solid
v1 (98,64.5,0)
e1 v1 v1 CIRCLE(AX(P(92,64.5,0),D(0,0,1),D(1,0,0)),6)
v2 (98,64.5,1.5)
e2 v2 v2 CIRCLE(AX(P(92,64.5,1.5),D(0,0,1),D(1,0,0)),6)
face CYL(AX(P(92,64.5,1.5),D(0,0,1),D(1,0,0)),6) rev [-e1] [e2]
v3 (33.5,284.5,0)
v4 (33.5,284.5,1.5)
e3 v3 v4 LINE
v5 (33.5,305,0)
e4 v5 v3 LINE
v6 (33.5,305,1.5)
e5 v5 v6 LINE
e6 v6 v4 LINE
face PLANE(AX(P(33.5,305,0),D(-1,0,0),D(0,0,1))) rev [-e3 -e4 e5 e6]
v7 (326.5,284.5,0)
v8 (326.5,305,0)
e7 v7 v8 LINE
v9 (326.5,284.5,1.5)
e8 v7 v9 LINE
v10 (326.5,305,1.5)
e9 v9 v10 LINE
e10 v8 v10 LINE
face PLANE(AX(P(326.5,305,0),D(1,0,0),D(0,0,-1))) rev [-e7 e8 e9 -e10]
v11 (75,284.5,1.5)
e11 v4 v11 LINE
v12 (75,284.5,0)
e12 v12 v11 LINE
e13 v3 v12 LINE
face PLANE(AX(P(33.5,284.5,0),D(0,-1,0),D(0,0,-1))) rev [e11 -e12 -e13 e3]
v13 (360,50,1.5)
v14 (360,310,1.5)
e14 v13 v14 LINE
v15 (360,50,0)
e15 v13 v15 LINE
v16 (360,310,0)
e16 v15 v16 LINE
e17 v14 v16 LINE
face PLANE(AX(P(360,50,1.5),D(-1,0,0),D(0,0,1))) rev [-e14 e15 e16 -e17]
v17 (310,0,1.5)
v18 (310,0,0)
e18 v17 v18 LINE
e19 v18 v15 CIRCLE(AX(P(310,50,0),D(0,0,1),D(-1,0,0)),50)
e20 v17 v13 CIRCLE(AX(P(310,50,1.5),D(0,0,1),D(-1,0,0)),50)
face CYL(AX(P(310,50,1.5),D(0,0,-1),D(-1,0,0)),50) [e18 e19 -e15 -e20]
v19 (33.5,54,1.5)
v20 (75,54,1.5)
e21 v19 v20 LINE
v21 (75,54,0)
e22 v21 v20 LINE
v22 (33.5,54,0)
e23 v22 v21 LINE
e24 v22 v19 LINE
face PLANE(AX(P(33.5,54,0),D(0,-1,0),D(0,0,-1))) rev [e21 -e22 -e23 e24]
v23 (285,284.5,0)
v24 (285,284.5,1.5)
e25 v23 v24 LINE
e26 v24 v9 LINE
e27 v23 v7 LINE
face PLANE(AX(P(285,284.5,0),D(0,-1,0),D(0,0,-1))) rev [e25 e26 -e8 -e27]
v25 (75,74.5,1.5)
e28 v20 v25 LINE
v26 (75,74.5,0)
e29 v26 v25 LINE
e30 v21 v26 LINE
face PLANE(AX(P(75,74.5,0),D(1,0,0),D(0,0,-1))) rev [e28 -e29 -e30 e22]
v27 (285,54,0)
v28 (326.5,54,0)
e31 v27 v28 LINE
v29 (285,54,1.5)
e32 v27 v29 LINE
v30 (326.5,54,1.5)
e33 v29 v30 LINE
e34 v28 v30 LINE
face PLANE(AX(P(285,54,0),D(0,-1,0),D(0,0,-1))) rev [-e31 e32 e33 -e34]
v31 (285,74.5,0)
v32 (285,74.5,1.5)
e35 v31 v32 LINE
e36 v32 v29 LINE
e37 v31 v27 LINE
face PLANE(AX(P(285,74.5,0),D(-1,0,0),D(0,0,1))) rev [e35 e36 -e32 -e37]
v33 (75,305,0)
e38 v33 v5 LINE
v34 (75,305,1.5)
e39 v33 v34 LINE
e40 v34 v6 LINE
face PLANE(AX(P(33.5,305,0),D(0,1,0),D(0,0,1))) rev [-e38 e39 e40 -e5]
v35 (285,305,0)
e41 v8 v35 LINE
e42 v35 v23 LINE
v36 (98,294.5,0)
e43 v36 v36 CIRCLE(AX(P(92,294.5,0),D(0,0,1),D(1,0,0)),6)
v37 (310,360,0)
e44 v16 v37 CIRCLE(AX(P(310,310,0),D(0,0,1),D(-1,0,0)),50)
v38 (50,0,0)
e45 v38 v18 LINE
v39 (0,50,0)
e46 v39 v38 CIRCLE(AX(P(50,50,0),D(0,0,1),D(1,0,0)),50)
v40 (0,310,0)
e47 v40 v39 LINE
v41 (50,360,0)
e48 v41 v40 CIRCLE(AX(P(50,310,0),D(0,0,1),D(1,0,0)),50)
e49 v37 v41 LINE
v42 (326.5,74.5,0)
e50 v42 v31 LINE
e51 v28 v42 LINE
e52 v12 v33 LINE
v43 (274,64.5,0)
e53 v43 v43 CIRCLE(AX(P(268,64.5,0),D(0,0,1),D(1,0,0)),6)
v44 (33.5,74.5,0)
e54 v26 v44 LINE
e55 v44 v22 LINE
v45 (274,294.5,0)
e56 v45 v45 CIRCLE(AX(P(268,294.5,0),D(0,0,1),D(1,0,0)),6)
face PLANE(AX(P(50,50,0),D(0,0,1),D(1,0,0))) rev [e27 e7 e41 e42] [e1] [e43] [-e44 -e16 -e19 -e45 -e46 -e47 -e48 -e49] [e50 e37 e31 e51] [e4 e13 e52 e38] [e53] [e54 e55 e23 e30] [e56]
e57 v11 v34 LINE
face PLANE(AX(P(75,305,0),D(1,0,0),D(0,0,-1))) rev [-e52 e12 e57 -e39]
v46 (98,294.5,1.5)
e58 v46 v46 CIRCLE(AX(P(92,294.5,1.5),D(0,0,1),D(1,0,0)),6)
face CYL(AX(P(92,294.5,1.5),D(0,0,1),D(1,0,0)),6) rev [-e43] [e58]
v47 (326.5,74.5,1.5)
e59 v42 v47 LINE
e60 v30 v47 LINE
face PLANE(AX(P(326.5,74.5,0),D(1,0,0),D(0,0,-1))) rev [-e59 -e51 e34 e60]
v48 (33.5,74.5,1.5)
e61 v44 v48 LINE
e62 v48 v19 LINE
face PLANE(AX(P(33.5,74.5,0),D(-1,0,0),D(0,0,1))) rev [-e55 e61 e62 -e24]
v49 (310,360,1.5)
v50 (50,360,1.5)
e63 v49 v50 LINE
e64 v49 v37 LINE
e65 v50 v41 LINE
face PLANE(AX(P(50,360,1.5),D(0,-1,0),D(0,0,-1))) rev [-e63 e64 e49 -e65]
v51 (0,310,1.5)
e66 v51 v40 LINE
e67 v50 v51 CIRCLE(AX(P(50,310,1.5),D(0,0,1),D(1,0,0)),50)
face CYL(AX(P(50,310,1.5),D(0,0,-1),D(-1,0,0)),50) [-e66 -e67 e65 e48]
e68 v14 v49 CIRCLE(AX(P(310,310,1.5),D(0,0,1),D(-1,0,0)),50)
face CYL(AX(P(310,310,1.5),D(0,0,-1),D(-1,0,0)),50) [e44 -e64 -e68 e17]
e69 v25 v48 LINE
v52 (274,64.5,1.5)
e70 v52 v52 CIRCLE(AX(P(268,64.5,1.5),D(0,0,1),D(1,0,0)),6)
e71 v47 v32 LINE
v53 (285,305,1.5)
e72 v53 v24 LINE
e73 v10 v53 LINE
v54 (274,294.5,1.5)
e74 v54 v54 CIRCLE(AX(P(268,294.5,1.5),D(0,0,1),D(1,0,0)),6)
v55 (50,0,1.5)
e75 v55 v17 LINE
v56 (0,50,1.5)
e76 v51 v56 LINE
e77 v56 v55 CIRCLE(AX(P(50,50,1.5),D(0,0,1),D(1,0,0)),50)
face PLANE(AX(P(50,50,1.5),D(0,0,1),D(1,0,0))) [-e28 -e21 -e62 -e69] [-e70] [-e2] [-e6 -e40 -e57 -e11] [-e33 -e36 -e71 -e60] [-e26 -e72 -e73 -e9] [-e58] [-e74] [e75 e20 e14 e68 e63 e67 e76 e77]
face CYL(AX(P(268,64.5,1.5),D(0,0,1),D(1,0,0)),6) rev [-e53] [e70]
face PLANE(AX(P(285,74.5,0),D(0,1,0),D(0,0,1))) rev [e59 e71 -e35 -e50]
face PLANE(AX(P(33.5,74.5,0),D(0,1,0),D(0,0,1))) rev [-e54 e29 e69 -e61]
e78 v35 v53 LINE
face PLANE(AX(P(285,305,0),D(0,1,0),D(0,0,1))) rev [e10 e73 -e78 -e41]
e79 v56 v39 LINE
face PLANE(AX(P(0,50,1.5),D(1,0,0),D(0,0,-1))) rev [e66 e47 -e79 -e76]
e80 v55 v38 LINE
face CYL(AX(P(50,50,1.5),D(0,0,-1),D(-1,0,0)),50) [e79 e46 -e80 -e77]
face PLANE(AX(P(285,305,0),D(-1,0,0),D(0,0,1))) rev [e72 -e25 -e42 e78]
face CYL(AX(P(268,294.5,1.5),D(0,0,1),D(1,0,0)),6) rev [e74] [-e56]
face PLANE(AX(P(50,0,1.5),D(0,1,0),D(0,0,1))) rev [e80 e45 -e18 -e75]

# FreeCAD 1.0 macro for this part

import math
import FreeCAD as App
import Part
import Sketcher

V = App.Vector
Q = App.Units.Quantity

doc = App.newDocument("Part")
body = doc.addObject("PartDesign::Body", "Body")

# Sketch on XY plane
sketch1 = body.newObject("Sketcher::SketchObject", "Sketch")
sketch1.AttachmentSupport = (doc.getObject("XY_Plane"), [""])
sketch1.MapMode = "FlatFace"
sketch1.addGeometry([
    Part.LineSegment(V(50, 0, 0), V(310, 0, 0)),  # 0
    Part.ArcOfCircle(Part.Circle(V(310, 50, 0), V(0, 0, 1), 50), math.radians(-90), math.radians(0)),  # 1
    Part.LineSegment(V(360, 50, 0), V(360, 310, 0)),  # 2
    Part.ArcOfCircle(Part.Circle(V(310, 310, 0), V(0, 0, 1), 50), math.radians(0), math.radians(90)),  # 3
    Part.LineSegment(V(310, 360, 0), V(50, 360, 0)),  # 4
    Part.ArcOfCircle(Part.Circle(V(50, 310, 0), V(0, 0, 1), 50), math.radians(90), math.radians(180)),  # 5
    Part.LineSegment(V(0, 310, 0), V(0, 50, 0)),  # 6
    Part.ArcOfCircle(Part.Circle(V(50, 50, 0), V(0, 0, 1), 50), math.radians(-180), math.radians(-90)),  # 7
], False)
sketch1.addConstraint([
    Sketcher.Constraint("Tangent", 0, 2, 1, 1),
    Sketcher.Constraint("Tangent", 1, 2, 2, 1),
    Sketcher.Constraint("Tangent", 2, 2, 3, 1),
    Sketcher.Constraint("Tangent", 3, 2, 4, 1),
    Sketcher.Constraint("Tangent", 4, 2, 5, 1),
    Sketcher.Constraint("Tangent", 5, 2, 6, 1),
    Sketcher.Constraint("Tangent", 6, 2, 7, 1),
    Sketcher.Constraint("Tangent", 7, 2, 0, 1),
    Sketcher.Constraint("Horizontal", 0),
    Sketcher.Constraint("Vertical", 2),
    Sketcher.Constraint("Horizontal", 4),
    Sketcher.Constraint("Vertical", 6),
    Sketcher.Constraint("Equal", 1, 3),
    Sketcher.Constraint("Equal", 3, 5),
    Sketcher.Constraint("Equal", 5, 7),
    Sketcher.Constraint("PointOnObject", 0, 2, -1),
    Sketcher.Constraint("PointOnObject", 5, 2, -2),
    Sketcher.Constraint("Equal", 4, 2),
    Sketcher.Constraint("Radius", 1, Q("50 mm")),
    Sketcher.Constraint("DistanceX", 0, 1, 0, 2, Q("260 mm")),
])
pad1 = body.newObject("PartDesign::Pad", "Pad")
pad1.Profile = sketch1
pad1.Length = 1.5

# Sketch on XY plane
sketch2 = body.newObject("Sketcher::SketchObject", "Sketch001")
sketch2.AttachmentSupport = (doc.getObject("XY_Plane"), [""])
sketch2.MapMode = "FlatFace"
sketch2.AttachmentOffset = App.Placement(V(0, 0, 1.5), App.Rotation())
sketch2.addGeometry([
    Part.LineSegment(V(34, 305, 0), V(34, 284, 0)),  # 0
    Part.LineSegment(V(34, 284, 0), V(75, 284, 0)),  # 1
    Part.LineSegment(V(75, 284, 0), V(75, 305, 0)),  # 2
    Part.LineSegment(V(75, 305, 0), V(34, 305, 0)),  # 3
    Part.LineSegment(V(285, 305, 0), V(285, 284, 0)),  # 4
    Part.LineSegment(V(285, 284, 0), V(326, 284, 0)),  # 5
    Part.LineSegment(V(326, 284, 0), V(326, 305, 0)),  # 6
    Part.LineSegment(V(326, 305, 0), V(285, 305, 0)),  # 7
    Part.LineSegment(V(285, 74, 0), V(285, 54, 0)),  # 8
    Part.LineSegment(V(285, 54, 0), V(326, 54, 0)),  # 9
    Part.LineSegment(V(326, 54, 0), V(326, 74, 0)),  # 10
    Part.LineSegment(V(326, 74, 0), V(285, 74, 0)),  # 11
    Part.LineSegment(V(34, 74, 0), V(34, 54, 0)),  # 12
    Part.LineSegment(V(34, 54, 0), V(75, 54, 0)),  # 13
    Part.LineSegment(V(75, 54, 0), V(75, 74, 0)),  # 14
    Part.LineSegment(V(75, 74, 0), V(34, 74, 0)),  # 15
], False)
sketch2.addConstraint([
    Sketcher.Constraint("Coincident", 0, 2, 1, 1),
    Sketcher.Constraint("Coincident", 1, 2, 2, 1),
    Sketcher.Constraint("Coincident", 2, 2, 3, 1),
    Sketcher.Constraint("Coincident", 3, 2, 0, 1),
    Sketcher.Constraint("Coincident", 4, 2, 5, 1),
    Sketcher.Constraint("Coincident", 5, 2, 6, 1),
    Sketcher.Constraint("Coincident", 6, 2, 7, 1),
    Sketcher.Constraint("Coincident", 7, 2, 4, 1),
    Sketcher.Constraint("Coincident", 8, 2, 9, 1),
    Sketcher.Constraint("Coincident", 9, 2, 10, 1),
    Sketcher.Constraint("Coincident", 10, 2, 11, 1),
    Sketcher.Constraint("Coincident", 11, 2, 8, 1),
    Sketcher.Constraint("Coincident", 12, 2, 13, 1),
    Sketcher.Constraint("Coincident", 13, 2, 14, 1),
    Sketcher.Constraint("Coincident", 14, 2, 15, 1),
    Sketcher.Constraint("Coincident", 15, 2, 12, 1),
    Sketcher.Constraint("Vertical", 0),
    Sketcher.Constraint("Horizontal", 1),
    Sketcher.Constraint("Vertical", 2),
    Sketcher.Constraint("Horizontal", 3),
    Sketcher.Constraint("Vertical", 4),
    Sketcher.Constraint("Horizontal", 5),
    Sketcher.Constraint("Vertical", 6),
    Sketcher.Constraint("Horizontal", 7),
    Sketcher.Constraint("Vertical", 8),
    Sketcher.Constraint("Horizontal", 9),
    Sketcher.Constraint("Vertical", 10),
    Sketcher.Constraint("Horizontal", 11),
    Sketcher.Constraint("Vertical", 12),
    Sketcher.Constraint("Horizontal", 13),
    Sketcher.Constraint("Vertical", 14),
    Sketcher.Constraint("Horizontal", 15),
    Sketcher.Constraint("Horizontal", 1, 2, 4, 2),
    Sketcher.Constraint("Horizontal", 3, 2, 6, 2),
    Sketcher.Constraint("Horizontal", 9, 2, 12, 2),
    Sketcher.Constraint("Horizontal", 11, 2, 14, 2),
    Sketcher.Constraint("Vertical", 7, 2, 8, 2),
    Sketcher.Constraint("Vertical", 6, 2, 9, 2),
    Sketcher.Constraint("Vertical", 3, 2, 12, 2),
    Sketcher.Constraint("Vertical", 2, 2, 13, 2),
    Sketcher.Constraint("Equal", 3, 5),
    Sketcher.Constraint("Equal", 6, 8),
    Sketcher.Constraint("DistanceX", 1, 1, 1, 2, Q("41.5 mm")),
    Sketcher.Constraint("DistanceY", 0, 2, 0, 1, Q("20.5 mm")),
    Sketcher.Constraint("DistanceX", -1, 1, 1, 2, Q("75 mm")),
    Sketcher.Constraint("DistanceY", -1, 1, 2, 2, Q("305 mm")),
    Sketcher.Constraint("DistanceX", -1, 1, 4, 2, Q("285 mm")),
    Sketcher.Constraint("DistanceY", -1, 1, 8, 2, Q("54 mm")),
])
pocket1 = body.newObject("PartDesign::Pocket", "Pocket")
pocket1.Profile = sketch2
pocket1.Length = 1.5

# Sketch on XY plane
sketch3 = body.newObject("Sketcher::SketchObject", "Sketch002")
sketch3.AttachmentSupport = (doc.getObject("XY_Plane"), [""])
sketch3.MapMode = "FlatFace"
sketch3.AttachmentOffset = App.Placement(V(0, 0, 1.5), App.Rotation())
sketch3.addGeometry([
    Part.Circle(V(92, 294, 0), V(0, 0, 1), 6),
    Part.Circle(V(268, 294, 0), V(0, 0, 1), 6),
    Part.Circle(V(268, 64, 0), V(0, 0, 1), 6),
    Part.Circle(V(92, 64, 0), V(0, 0, 1), 6),
], False)
sketch3.addConstraint([
    Sketcher.Constraint("Equal", 0, 1),
    Sketcher.Constraint("Equal", 1, 2),
    Sketcher.Constraint("Equal", 2, 3),
    Sketcher.Constraint("Horizontal", 0, 3, 1, 3),
    Sketcher.Constraint("Horizontal", 2, 3, 3, 3),
    Sketcher.Constraint("Vertical", 1, 3, 2, 3),
    Sketcher.Constraint("Vertical", 0, 3, 3, 3),
    Sketcher.Constraint("Diameter", 0, Q("12 mm")),
    Sketcher.Constraint("DistanceX", -1, 1, 0, 3, Q("92 mm")),
    Sketcher.Constraint("DistanceX", -1, 1, 1, 3, Q("268 mm")),
    Sketcher.Constraint("DistanceY", 2, 3, 1, 3, Q("230 mm")),
    Sketcher.Constraint("DistanceY", -1, 1, 0, 3, Q("294.5 mm")),
])
doc.recompute()
hole = body.newObject("PartDesign::Hole", "Hole")
hole.Profile = sketch3
hole.ThreadType = "None"
hole.Diameter = 12
hole.DepthType = "ThroughAll"

doc.recompute()
